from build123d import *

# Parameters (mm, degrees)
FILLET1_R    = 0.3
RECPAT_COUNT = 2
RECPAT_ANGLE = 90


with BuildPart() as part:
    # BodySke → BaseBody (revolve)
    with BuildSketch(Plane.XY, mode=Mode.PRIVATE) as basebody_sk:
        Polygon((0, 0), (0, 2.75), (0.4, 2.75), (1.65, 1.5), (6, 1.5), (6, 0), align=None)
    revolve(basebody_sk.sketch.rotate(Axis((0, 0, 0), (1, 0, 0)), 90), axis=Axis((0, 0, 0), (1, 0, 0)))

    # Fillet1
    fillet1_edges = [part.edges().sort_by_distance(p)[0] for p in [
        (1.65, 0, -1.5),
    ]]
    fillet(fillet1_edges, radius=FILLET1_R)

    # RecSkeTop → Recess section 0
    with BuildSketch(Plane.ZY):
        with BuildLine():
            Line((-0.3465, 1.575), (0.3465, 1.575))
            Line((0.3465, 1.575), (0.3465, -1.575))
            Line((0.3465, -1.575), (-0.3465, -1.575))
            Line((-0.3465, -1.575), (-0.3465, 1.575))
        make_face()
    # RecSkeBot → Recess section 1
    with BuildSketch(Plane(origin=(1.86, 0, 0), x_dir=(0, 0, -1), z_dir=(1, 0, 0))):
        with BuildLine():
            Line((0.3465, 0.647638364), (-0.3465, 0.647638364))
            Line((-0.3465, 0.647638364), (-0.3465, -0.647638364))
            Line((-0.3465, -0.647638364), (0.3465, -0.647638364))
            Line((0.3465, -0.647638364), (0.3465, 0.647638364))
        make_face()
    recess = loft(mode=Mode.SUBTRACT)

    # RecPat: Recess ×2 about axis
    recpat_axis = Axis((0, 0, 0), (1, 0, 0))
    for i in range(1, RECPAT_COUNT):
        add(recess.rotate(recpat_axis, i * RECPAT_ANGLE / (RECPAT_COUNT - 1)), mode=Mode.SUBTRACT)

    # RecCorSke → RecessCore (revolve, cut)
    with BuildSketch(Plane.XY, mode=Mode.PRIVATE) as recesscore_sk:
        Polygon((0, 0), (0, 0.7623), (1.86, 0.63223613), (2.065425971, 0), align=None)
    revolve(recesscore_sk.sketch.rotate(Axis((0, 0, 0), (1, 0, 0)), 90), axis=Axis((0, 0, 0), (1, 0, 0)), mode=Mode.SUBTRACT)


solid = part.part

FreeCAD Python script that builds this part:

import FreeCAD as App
import Part
import Sketcher
from FreeCAD import Vector
Q = App.Units.Quantity


def edges_at(feature, points):
    """Names of the edges that pass closest to the given points."""
    edges = feature.Shape.Edges
    near = lambda p: min(range(len(edges)), key=lambda i: edges[i].distToShape(Part.Vertex(*p))[0])
    return sorted({f"Edge{near(p) + 1}" for p in points})


def add_polygon(sketch, points):
    """Adds a closed chain of lines whose ends are joined by coincident constraints."""
    first, n = sketch.GeometryCount, len(points)
    for a, b in zip(points, points[1:] + points[:1]):
        sketch.addGeometry(Part.LineSegment(App.Vector(*a, 0), App.Vector(*b, 0)), False)
    for i in range(n):
        sketch.addConstraint(Sketcher.Constraint("Coincident", first + i, 2, first + (i + 1) % n, 1))

doc = App.newDocument("Part")
body = doc.addObject("PartDesign::Body", "Body")

sketch1 = body.newObject("Sketcher::SketchObject", "Sketch")
sketch1.AttachmentSupport = (doc.getObject("XY_Plane"), [""])
sketch1.MapMode = "FlatFace"
add_polygon(sketch1, [(0, 2.75), (0, 0), (6, 0), (6, 1.5), (1.65, 1.5), (0.4, 2.75)])
sketch1.addConstraint(Sketcher.Constraint("Vertical", 0))
sketch1.addConstraint(Sketcher.Constraint("Horizontal", 1))
sketch1.addConstraint(Sketcher.Constraint("Vertical", 2))
sketch1.addConstraint(Sketcher.Constraint("Horizontal", 3))
sketch1.addConstraint(Sketcher.Constraint("Horizontal", 5))
sketch1.addConstraint(Sketcher.Constraint("Coincident", 0, 2, -1, 1))
sketch1.addConstraint(Sketcher.Constraint("DistanceX", 1, 1, 1, 2, 6.0))
sketch1.addConstraint(Sketcher.Constraint("Angle", 4, Q("135 deg")))
sketch1.addConstraint(Sketcher.Constraint("DistanceX", 5, 2, 5, 1, 0.4))
sketch1.addConstraint(Sketcher.Constraint("DistanceY", 2, 1, 2, 2, 1.5))
sketch1.addConstraint(Sketcher.Constraint("DistanceX", 3, 2, 3, 1, 4.35))
revolution = body.newObject("PartDesign::Revolution", "Revolution")
revolution.Profile = sketch1
revolution.ReferenceAxis = (sketch1, ["H_Axis"])
revolution.Angle = 360
doc.recompute()

fillet = body.newObject("PartDesign::Fillet", "Fillet")
fillet.Base = (revolution, edges_at(revolution, [(1.65, 0, -1.5)]))
fillet.Radius = 0.3

sketch2 = body.newObject("Sketcher::SketchObject", "Sketch001")
sketch2.AttachmentSupport = (doc.getObject("YZ_Plane"), [""])
sketch2.MapMode = "FlatFace"
add_polygon(sketch2, [(1.6, 0.3), (1.6, -0.3), (-1.6, -0.3), (-1.6, 0.3)])
sketch2.addConstraint(Sketcher.Constraint("Vertical", 0))
sketch2.addConstraint(Sketcher.Constraint("Horizontal", 1))
sketch2.addConstraint(Sketcher.Constraint("Vertical", 2))
sketch2.addConstraint(Sketcher.Constraint("Horizontal", 3))
sketch2.addConstraint(Sketcher.Constraint("Symmetric", 0, 2, 2, 2, -1, 1))
sketch2.addConstraint(Sketcher.Constraint("DistanceX", 1, 2, 1, 1, 3.15))
sketch2.addConstraint(Sketcher.Constraint("DistanceY", 0, 2, 0, 1, 0.693))

sketch3 = body.newObject("Sketcher::SketchObject", "Sketch002")
sketch3.AttachmentSupport = (doc.getObject("YZ_Plane"), [""])
sketch3.MapMode = "FlatFace"
sketch3.AttachmentOffset = App.Placement(Vector(0, 0, 1.86), App.Rotation())
add_polygon(sketch3, [(0.6, -0.3), (0.6, 0.3), (-0.6, 0.3), (-0.6, -0.3)])
sketch3.addConstraint(Sketcher.Constraint("Vertical", 0))
sketch3.addConstraint(Sketcher.Constraint("Horizontal", 1))
sketch3.addConstraint(Sketcher.Constraint("Vertical", 2))
sketch3.addConstraint(Sketcher.Constraint("Horizontal", 3))
sketch3.addConstraint(Sketcher.Constraint("Symmetric", 0, 2, 2, 2, -1, 1))
sketch3.addConstraint(Sketcher.Constraint("DistanceY", 0, 1, 0, 2, 0.693))
sketch3.addConstraint(Sketcher.Constraint("DistanceX", 1, 2, 1, 1, 1.295277))

subtractiveloft = body.newObject("PartDesign::SubtractiveLoft", "SubtractiveLoft")
subtractiveloft.Profile = sketch2
subtractiveloft.Sections = [sketch3]
doc.recompute()

polarpattern = body.newObject("PartDesign::PolarPattern", "PolarPattern")
polarpattern.Originals = [subtractiveloft]
polarpattern.Axis = (doc.getObject("X_Axis"), [""])
polarpattern.Angle = 90
polarpattern.Occurrences = 2
body.Tip = polarpattern

sketch4 = body.newObject("Sketcher::SketchObject", "Sketch003")
sketch4.AttachmentSupport = (doc.getObject("XY_Plane"), [""])
sketch4.MapMode = "FlatFace"
add_polygon(sketch4, [(0, 0.8), (0, 0), (2.1, 0), (1.9, 0.6)])
sketch4.addConstraint(Sketcher.Constraint("Vertical", 0))
sketch4.addConstraint(Sketcher.Constraint("Horizontal", 1))
sketch4.addConstraint(Sketcher.Constraint("Coincident", 0, 2, -1, 1))
sketch4.addConstraint(Sketcher.Constraint("Angle", 2, Q("108 deg")))
sketch4.addConstraint(Sketcher.Constraint("Angle", 3, Q("176 deg")))
sketch4.addConstraint(Sketcher.Constraint("DistanceX", -1, 1, 2, 2, 1.86))
sketch4.addConstraint(Sketcher.Constraint("DistanceY", 0, 2, 0, 1, 0.7623))
groove = body.newObject("PartDesign::Groove", "Groove")
groove.Profile = sketch4
groove.ReferenceAxis = (sketch4, ["H_Axis"])
groove.Angle = 360

doc.recompute()
